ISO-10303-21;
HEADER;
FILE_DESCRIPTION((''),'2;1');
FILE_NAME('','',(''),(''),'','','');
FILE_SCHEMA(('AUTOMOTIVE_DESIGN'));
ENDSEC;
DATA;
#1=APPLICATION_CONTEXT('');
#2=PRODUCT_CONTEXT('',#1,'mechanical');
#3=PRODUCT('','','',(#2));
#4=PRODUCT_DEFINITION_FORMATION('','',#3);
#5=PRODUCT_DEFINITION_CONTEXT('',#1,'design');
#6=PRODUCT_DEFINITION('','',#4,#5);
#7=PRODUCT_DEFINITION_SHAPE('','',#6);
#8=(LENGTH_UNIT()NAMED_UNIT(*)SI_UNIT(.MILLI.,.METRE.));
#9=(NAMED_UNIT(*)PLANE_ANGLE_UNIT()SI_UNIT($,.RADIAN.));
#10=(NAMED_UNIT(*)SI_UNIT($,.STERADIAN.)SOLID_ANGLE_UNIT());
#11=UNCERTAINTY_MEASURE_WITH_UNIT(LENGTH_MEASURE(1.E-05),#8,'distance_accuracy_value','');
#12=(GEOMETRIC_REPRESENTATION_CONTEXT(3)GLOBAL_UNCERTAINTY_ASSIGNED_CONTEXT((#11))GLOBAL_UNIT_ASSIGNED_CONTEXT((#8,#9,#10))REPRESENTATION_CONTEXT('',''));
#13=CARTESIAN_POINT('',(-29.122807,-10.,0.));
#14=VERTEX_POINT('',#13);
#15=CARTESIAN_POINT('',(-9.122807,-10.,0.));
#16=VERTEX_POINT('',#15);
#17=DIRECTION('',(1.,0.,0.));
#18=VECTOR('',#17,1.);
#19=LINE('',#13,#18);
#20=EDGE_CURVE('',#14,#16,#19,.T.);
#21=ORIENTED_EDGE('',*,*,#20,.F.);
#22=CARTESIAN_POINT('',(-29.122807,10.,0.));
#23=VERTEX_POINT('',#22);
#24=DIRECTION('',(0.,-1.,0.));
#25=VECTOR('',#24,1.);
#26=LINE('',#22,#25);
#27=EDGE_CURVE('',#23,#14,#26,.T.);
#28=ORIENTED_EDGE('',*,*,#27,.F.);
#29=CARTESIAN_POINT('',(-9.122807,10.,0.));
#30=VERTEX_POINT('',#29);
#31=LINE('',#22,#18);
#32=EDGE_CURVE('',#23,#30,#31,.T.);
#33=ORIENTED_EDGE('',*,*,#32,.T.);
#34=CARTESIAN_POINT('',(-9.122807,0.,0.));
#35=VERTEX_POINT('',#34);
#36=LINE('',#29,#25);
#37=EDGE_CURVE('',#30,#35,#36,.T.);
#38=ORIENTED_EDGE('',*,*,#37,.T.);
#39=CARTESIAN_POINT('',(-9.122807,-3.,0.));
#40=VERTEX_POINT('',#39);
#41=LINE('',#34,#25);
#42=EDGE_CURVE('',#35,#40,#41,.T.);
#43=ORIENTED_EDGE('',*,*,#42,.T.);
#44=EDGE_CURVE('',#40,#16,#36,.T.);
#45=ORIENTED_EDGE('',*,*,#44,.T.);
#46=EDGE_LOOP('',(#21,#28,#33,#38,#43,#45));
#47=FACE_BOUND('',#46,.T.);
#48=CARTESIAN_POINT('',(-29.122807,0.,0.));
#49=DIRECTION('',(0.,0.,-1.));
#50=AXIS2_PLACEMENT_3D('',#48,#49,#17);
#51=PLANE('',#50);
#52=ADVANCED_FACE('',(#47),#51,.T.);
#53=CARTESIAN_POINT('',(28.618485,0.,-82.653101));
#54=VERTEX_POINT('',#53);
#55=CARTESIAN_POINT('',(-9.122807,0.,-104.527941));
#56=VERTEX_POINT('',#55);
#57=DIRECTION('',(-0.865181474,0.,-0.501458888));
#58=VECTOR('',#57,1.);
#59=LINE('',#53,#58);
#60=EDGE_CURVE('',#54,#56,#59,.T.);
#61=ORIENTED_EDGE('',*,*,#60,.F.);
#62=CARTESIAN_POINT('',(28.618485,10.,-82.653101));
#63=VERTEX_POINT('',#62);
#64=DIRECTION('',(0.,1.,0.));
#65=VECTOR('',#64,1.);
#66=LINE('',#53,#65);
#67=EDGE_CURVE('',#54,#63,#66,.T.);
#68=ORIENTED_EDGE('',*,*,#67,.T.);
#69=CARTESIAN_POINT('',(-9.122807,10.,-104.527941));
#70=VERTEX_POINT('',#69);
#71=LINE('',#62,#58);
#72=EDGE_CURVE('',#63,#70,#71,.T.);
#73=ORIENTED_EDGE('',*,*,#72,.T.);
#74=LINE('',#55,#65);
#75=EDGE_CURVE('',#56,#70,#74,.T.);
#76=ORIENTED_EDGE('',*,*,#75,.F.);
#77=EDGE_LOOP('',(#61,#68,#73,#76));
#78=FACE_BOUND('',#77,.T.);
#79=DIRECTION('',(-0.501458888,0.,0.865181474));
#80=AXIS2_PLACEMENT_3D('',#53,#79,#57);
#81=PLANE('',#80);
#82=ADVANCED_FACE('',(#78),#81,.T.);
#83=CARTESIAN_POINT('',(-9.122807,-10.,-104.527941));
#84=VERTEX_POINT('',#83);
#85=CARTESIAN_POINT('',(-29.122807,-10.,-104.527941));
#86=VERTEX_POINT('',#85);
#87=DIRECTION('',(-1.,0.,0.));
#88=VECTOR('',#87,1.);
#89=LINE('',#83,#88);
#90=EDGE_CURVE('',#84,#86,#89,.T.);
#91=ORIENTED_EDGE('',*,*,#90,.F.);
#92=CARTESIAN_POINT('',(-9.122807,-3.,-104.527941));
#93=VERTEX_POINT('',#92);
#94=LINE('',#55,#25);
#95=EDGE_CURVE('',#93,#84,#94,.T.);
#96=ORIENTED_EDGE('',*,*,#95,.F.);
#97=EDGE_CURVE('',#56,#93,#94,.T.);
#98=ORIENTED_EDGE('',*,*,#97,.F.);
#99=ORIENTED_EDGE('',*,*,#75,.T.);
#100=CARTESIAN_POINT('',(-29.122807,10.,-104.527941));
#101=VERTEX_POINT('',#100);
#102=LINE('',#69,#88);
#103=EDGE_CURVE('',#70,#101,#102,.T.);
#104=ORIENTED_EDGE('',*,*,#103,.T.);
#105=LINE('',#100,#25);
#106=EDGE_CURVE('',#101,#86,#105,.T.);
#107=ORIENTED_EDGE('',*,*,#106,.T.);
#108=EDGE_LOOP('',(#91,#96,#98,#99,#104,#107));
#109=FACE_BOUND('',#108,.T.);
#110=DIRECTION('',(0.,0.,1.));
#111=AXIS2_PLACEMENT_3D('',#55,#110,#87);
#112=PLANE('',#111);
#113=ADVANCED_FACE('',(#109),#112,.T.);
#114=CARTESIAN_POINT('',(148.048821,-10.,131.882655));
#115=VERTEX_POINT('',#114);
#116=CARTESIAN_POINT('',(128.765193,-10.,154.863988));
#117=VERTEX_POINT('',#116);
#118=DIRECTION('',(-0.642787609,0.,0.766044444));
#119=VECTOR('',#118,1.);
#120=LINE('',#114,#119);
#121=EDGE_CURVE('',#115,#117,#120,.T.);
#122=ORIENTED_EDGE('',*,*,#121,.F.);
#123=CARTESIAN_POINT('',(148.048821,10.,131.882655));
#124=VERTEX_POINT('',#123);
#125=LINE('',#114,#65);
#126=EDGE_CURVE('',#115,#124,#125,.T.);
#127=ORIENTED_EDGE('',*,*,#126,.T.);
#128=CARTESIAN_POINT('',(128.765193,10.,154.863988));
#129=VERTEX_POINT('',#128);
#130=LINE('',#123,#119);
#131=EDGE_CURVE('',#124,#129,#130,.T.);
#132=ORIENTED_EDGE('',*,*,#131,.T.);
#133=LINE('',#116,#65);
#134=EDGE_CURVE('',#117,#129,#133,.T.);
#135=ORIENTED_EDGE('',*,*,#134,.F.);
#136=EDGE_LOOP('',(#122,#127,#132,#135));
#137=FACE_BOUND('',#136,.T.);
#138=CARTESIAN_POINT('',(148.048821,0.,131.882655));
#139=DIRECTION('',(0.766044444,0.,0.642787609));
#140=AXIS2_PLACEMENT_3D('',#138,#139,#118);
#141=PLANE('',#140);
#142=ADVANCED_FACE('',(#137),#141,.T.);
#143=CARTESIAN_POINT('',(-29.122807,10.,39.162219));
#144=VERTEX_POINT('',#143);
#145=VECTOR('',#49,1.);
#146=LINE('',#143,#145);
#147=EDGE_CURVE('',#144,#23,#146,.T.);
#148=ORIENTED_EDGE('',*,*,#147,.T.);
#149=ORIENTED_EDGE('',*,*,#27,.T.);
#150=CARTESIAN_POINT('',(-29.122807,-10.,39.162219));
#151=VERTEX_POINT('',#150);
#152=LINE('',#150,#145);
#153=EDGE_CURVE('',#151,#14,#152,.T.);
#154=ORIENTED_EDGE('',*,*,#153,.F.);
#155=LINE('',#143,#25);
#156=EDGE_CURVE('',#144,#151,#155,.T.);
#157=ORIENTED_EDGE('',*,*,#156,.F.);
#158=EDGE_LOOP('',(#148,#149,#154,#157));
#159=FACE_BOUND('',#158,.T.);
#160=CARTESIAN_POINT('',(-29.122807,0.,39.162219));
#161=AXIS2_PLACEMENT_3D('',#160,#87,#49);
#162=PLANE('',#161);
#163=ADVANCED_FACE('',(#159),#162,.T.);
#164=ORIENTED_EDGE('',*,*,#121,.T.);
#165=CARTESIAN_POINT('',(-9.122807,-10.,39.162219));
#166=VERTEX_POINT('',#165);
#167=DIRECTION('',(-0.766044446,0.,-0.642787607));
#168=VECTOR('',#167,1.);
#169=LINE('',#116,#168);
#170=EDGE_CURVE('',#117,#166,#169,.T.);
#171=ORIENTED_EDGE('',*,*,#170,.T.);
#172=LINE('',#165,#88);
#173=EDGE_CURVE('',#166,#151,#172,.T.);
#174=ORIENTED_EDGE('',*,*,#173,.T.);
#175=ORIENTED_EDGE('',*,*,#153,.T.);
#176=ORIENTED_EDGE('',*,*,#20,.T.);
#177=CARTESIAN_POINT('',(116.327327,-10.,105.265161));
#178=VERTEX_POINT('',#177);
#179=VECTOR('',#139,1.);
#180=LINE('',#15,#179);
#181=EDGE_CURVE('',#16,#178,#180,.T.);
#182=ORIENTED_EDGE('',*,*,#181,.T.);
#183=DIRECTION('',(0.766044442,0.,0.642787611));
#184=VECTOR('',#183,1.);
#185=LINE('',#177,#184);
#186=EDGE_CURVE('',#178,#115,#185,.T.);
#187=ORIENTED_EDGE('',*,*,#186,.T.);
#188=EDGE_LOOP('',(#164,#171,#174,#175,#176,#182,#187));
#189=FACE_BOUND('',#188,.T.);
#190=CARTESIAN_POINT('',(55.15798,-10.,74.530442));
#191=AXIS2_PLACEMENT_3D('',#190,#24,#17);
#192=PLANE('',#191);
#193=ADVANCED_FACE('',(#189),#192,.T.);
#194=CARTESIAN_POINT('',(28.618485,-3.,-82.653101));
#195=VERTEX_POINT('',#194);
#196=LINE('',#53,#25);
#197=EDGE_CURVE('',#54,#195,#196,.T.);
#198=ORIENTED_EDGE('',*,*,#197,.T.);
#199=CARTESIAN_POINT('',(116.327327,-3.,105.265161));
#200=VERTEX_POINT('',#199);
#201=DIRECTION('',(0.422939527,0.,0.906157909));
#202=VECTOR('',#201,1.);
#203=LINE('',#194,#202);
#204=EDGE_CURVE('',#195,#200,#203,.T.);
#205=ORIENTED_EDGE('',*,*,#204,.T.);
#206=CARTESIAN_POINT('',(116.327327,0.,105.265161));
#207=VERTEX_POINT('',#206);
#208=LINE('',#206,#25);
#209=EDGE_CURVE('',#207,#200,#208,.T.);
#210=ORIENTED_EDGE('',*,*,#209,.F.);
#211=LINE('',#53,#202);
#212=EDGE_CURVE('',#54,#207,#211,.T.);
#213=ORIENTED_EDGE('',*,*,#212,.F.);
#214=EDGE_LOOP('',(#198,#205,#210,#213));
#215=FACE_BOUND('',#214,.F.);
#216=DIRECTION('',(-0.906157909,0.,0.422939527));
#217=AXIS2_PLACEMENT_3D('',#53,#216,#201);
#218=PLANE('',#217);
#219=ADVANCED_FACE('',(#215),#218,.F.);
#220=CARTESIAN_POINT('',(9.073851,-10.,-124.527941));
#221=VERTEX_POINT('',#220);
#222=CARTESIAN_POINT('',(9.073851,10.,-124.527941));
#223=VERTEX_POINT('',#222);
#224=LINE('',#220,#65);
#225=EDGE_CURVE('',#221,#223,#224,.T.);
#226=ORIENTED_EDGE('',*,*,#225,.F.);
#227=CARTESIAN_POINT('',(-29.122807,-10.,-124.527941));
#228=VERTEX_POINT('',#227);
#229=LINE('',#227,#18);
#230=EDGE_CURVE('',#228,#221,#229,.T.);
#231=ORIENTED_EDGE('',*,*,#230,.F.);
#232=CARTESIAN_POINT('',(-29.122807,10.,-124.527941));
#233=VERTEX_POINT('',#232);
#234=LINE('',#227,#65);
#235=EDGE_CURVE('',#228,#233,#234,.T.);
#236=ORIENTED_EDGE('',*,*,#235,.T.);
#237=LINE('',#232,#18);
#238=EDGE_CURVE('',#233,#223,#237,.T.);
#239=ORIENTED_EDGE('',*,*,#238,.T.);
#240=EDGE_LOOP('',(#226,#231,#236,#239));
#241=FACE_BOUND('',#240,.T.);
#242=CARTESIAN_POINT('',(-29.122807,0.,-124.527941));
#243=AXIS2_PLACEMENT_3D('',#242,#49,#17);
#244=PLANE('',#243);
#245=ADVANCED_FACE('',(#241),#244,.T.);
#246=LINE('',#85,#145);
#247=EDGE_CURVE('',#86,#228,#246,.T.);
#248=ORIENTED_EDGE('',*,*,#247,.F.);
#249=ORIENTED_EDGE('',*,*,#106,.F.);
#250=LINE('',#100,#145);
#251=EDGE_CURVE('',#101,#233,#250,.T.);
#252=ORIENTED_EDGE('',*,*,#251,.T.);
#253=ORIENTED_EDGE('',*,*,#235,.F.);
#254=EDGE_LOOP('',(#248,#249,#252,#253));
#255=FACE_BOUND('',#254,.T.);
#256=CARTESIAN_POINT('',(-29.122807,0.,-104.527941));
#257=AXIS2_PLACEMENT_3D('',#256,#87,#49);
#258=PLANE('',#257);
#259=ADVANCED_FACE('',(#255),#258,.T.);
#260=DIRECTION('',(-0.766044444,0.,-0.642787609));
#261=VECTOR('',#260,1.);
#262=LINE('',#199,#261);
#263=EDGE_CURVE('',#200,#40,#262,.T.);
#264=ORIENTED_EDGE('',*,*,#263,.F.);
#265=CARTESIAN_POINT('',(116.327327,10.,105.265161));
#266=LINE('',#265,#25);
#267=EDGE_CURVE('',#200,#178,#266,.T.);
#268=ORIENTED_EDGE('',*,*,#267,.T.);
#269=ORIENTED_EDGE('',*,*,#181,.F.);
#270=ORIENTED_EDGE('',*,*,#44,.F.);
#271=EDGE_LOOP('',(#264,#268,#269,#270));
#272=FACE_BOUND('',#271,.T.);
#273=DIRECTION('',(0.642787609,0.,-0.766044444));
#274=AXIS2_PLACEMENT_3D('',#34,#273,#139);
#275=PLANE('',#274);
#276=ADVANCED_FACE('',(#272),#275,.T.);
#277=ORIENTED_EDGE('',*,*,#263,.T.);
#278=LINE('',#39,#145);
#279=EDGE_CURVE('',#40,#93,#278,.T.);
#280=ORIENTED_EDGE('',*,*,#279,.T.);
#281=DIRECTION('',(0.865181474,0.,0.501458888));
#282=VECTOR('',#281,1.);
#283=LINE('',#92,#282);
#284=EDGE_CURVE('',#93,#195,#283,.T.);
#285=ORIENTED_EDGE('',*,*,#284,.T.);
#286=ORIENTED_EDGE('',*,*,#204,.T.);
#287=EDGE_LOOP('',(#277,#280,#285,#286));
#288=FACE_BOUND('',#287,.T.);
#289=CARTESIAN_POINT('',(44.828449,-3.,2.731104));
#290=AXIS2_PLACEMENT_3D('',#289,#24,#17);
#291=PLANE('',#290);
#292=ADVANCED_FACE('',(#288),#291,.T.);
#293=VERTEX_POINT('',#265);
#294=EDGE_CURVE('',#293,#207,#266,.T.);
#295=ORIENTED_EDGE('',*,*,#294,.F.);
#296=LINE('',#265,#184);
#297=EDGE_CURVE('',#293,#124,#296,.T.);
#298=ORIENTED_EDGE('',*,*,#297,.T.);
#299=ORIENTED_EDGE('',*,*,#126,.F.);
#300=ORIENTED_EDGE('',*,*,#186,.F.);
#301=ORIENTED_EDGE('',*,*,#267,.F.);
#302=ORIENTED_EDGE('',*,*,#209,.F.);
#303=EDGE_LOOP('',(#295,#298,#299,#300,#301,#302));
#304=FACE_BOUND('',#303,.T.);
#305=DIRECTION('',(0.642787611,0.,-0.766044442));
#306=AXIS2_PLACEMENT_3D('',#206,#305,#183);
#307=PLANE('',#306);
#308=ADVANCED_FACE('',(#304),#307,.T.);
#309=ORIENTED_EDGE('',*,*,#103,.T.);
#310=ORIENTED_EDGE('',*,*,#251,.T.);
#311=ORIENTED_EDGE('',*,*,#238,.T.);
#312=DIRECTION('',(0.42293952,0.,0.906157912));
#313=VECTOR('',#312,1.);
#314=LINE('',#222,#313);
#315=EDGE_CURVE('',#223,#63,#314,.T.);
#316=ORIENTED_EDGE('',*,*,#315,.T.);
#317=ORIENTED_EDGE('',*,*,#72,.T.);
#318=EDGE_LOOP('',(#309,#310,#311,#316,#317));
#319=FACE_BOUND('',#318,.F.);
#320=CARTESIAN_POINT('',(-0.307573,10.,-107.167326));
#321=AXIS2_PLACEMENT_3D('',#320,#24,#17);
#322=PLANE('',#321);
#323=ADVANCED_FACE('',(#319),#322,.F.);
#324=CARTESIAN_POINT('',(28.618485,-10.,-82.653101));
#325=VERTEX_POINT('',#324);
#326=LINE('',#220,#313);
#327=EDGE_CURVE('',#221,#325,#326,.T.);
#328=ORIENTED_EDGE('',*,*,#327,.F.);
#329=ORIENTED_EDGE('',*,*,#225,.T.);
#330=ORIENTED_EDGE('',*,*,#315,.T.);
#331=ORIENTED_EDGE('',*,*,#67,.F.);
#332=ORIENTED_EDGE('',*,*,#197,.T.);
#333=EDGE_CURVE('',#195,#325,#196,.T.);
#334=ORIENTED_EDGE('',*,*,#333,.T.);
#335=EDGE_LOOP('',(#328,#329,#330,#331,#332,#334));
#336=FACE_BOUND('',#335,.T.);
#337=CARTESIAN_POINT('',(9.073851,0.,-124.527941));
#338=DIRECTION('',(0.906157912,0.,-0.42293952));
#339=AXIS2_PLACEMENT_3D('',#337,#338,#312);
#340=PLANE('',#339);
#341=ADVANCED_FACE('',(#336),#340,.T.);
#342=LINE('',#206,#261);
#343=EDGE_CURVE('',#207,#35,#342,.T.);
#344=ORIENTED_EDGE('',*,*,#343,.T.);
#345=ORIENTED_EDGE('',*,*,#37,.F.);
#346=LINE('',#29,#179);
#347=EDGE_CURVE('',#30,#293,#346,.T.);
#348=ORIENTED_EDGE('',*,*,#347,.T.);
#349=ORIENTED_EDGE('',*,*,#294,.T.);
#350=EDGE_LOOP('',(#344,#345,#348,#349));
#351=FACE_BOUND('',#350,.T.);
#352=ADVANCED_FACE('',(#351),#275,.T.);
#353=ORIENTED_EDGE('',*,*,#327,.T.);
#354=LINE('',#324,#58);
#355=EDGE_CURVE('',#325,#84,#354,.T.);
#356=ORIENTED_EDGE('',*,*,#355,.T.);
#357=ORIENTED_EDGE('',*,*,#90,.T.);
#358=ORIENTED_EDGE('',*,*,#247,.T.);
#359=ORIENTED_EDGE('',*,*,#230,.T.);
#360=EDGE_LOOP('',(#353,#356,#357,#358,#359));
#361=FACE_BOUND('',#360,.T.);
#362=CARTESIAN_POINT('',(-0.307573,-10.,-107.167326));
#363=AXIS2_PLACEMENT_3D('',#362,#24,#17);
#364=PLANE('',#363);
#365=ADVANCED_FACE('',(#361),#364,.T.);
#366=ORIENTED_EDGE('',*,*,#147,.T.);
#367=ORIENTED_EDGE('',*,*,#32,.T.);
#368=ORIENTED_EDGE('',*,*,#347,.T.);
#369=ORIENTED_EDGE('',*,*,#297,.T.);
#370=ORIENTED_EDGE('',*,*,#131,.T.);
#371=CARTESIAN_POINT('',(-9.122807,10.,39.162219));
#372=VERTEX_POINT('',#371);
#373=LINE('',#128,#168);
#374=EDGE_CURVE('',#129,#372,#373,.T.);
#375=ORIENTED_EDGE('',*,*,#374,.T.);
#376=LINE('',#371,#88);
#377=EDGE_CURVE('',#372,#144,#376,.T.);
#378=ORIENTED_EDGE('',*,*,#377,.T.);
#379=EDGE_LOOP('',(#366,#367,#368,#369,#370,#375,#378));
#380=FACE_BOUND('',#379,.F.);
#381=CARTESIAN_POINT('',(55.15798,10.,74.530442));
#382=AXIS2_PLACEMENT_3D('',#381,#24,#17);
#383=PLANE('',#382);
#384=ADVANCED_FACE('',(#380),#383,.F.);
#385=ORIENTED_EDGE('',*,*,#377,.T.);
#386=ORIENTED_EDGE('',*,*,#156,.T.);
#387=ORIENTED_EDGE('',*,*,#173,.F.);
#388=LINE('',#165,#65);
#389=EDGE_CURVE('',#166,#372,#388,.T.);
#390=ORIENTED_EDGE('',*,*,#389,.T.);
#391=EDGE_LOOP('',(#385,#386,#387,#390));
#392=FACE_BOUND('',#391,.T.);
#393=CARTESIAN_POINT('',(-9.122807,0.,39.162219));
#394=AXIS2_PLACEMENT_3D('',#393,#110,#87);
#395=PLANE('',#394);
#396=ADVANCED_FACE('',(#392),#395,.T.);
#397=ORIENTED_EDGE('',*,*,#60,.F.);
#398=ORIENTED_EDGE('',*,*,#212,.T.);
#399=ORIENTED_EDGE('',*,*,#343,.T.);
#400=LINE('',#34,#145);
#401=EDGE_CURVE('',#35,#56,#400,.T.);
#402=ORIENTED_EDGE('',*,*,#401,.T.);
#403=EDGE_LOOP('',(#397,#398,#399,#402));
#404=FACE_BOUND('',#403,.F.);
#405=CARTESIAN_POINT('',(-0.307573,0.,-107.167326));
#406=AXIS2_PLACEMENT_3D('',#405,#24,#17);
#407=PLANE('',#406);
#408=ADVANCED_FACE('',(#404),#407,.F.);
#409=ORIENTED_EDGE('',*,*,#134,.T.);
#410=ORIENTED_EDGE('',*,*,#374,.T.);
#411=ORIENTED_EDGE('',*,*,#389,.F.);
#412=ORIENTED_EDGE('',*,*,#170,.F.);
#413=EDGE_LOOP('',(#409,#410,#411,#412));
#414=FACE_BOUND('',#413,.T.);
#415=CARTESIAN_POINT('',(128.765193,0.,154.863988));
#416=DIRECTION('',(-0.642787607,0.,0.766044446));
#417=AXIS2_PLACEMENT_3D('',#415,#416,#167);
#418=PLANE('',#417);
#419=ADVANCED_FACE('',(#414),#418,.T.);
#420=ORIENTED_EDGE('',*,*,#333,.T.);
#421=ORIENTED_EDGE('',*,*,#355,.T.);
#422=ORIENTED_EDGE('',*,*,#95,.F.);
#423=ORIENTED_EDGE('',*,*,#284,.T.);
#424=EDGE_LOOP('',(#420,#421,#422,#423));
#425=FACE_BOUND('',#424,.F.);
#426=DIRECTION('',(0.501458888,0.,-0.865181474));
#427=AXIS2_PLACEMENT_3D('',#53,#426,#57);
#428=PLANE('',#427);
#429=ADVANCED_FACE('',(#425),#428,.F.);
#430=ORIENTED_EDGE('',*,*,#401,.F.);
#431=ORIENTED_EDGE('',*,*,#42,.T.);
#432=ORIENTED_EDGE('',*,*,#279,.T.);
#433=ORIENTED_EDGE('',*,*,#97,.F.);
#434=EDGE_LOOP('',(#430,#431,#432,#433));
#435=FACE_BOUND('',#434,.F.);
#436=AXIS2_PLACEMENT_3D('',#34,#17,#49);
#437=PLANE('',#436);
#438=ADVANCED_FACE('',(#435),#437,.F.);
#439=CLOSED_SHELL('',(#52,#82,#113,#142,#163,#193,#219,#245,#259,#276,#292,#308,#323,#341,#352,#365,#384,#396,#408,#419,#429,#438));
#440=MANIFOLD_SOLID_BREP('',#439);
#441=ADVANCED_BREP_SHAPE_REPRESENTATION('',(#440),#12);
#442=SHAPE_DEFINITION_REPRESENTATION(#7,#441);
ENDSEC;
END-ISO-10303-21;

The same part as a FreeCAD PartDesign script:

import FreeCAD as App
import Part
import Sketcher
from FreeCAD import Vector
Q = App.Units.Quantity


def add_polygon(sketch, points):
    """Adds a closed chain of lines whose ends are joined by coincident constraints."""
    first, n = sketch.GeometryCount, len(points)
    for a, b in zip(points, points[1:] + points[:1]):
        sketch.addGeometry(Part.LineSegment(App.Vector(*a, 0), App.Vector(*b, 0)), False)
    for i in range(n):
        sketch.addConstraint(Sketcher.Constraint("Coincident", first + i, 2, first + (i + 1) % n, 1))

doc = App.newDocument("Part")
body = doc.addObject("PartDesign::Body", "Body")

# Sketch on XZ plane
sketch1 = body.newObject("Sketcher::SketchObject", "Sketch")
sketch1.AttachmentSupport = (doc.getObject("XZ_Plane"), [""])
sketch1.MapMode = "FlatFace"
add_polygon(sketch1, [(-9, 39), (-29, 39), (-29, 0), (-9, 0), (116, 105), (148, 132), (129, 155)])  # lines 0-6
sketch1.addConstraint([
    Sketcher.Constraint("Horizontal", 0),
    Sketcher.Constraint("Vertical", 1),
    Sketcher.Constraint("Horizontal", 2),
    Sketcher.Constraint("PointOnObject", 1, 2, -1),
    Sketcher.Constraint("Parallel", 3, 4),
    Sketcher.Constraint("Perpendicular", 4, 5),
    Sketcher.Constraint("Perpendicular", 5, 6),
    Sketcher.Constraint("Vertical", 2, 2, 6, 2),
    Sketcher.Constraint("DistanceX", 0, 2, 0, 1, 20.0),
    Sketcher.Constraint("Angle", 3, Q("40 deg")),
    Sketcher.Constraint("Distance", 5, 30.0),
    Sketcher.Constraint("Distance", 6, 180.0),
    Sketcher.Constraint("Distance", 3, 163.763519),
    Sketcher.Constraint("DistanceX", -1, 1, 4, 2, 148.048821),
])
pad1 = body.newObject("PartDesign::Pad", "Pad")
pad1.Profile = sketch1
pad1.Type = "TwoLengths"
pad1.Length = 10
pad1.Length2 = 10

# Sketch on XZ plane
sketch2 = body.newObject("Sketcher::SketchObject", "Sketch001")
sketch2.AttachmentSupport = (doc.getObject("XZ_Plane"), [""])
sketch2.MapMode = "FlatFace"
add_polygon(sketch2, [(116, 105), (-9, 0), (-9, -105), (29, -83)])  # lines 0-3
sketch2.addConstraint([
    Sketcher.Constraint("Vertical", 1),
    Sketcher.Constraint("PointOnObject", 0, 2, -1),
    Sketcher.Constraint("Angle", 0, Q("-140 deg")),
    Sketcher.Constraint("Distance", 2, 43.6224),
    Sketcher.Constraint("DistanceY", 1, 2, 1, 1, 104.527941),
    Sketcher.Constraint("DistanceY", 2, 2, -1, 1, 82.653101),
    Sketcher.Constraint("DistanceY", 1, 2, 3, 2, 209.793102),
    Sketcher.Constraint("DistanceX", 0, 2, -1, 1, 9.122807),
])
pad2 = body.newObject("PartDesign::Pad", "Pad001")
pad2.Profile = sketch2
pad2.Length = 3

# Sketch on XZ plane
sketch3 = body.newObject("Sketcher::SketchObject", "Sketch002")
sketch3.AttachmentSupport = (doc.getObject("XZ_Plane"), [""])
sketch3.MapMode = "FlatFace"
add_polygon(sketch3, [(29, -83), (-9, -105), (-29, -105), (-29, -125), (9, -125)])  # lines 0-4
sketch3.addConstraint([
    Sketcher.Constraint("Horizontal", 1),
    Sketcher.Constraint("Vertical", 2),
    Sketcher.Constraint("Horizontal", 3),
    Sketcher.Constraint("Equal", 1, 2),
    Sketcher.Constraint("DistanceX", 1, 2, 1, 1, 20.0),
    Sketcher.Constraint("Distance", 0, 43.6224),
    Sketcher.Constraint("DistanceY", 4, 2, -1, 1, 82.653101),
    Sketcher.Constraint("DistanceX", 3, 1, 3, 2, 38.196658),
    Sketcher.Constraint("DistanceY", 0, 2, -1, 1, 104.527941),
    Sketcher.Constraint("DistanceX", -1, 1, 3, 2, 9.073851),
])
pad3 = body.newObject("PartDesign::Pad", "Pad002")
pad3.Profile = sketch3
pad3.Type = "TwoLengths"
pad3.Length = 10
pad3.Length2 = 10

doc.recompute()
